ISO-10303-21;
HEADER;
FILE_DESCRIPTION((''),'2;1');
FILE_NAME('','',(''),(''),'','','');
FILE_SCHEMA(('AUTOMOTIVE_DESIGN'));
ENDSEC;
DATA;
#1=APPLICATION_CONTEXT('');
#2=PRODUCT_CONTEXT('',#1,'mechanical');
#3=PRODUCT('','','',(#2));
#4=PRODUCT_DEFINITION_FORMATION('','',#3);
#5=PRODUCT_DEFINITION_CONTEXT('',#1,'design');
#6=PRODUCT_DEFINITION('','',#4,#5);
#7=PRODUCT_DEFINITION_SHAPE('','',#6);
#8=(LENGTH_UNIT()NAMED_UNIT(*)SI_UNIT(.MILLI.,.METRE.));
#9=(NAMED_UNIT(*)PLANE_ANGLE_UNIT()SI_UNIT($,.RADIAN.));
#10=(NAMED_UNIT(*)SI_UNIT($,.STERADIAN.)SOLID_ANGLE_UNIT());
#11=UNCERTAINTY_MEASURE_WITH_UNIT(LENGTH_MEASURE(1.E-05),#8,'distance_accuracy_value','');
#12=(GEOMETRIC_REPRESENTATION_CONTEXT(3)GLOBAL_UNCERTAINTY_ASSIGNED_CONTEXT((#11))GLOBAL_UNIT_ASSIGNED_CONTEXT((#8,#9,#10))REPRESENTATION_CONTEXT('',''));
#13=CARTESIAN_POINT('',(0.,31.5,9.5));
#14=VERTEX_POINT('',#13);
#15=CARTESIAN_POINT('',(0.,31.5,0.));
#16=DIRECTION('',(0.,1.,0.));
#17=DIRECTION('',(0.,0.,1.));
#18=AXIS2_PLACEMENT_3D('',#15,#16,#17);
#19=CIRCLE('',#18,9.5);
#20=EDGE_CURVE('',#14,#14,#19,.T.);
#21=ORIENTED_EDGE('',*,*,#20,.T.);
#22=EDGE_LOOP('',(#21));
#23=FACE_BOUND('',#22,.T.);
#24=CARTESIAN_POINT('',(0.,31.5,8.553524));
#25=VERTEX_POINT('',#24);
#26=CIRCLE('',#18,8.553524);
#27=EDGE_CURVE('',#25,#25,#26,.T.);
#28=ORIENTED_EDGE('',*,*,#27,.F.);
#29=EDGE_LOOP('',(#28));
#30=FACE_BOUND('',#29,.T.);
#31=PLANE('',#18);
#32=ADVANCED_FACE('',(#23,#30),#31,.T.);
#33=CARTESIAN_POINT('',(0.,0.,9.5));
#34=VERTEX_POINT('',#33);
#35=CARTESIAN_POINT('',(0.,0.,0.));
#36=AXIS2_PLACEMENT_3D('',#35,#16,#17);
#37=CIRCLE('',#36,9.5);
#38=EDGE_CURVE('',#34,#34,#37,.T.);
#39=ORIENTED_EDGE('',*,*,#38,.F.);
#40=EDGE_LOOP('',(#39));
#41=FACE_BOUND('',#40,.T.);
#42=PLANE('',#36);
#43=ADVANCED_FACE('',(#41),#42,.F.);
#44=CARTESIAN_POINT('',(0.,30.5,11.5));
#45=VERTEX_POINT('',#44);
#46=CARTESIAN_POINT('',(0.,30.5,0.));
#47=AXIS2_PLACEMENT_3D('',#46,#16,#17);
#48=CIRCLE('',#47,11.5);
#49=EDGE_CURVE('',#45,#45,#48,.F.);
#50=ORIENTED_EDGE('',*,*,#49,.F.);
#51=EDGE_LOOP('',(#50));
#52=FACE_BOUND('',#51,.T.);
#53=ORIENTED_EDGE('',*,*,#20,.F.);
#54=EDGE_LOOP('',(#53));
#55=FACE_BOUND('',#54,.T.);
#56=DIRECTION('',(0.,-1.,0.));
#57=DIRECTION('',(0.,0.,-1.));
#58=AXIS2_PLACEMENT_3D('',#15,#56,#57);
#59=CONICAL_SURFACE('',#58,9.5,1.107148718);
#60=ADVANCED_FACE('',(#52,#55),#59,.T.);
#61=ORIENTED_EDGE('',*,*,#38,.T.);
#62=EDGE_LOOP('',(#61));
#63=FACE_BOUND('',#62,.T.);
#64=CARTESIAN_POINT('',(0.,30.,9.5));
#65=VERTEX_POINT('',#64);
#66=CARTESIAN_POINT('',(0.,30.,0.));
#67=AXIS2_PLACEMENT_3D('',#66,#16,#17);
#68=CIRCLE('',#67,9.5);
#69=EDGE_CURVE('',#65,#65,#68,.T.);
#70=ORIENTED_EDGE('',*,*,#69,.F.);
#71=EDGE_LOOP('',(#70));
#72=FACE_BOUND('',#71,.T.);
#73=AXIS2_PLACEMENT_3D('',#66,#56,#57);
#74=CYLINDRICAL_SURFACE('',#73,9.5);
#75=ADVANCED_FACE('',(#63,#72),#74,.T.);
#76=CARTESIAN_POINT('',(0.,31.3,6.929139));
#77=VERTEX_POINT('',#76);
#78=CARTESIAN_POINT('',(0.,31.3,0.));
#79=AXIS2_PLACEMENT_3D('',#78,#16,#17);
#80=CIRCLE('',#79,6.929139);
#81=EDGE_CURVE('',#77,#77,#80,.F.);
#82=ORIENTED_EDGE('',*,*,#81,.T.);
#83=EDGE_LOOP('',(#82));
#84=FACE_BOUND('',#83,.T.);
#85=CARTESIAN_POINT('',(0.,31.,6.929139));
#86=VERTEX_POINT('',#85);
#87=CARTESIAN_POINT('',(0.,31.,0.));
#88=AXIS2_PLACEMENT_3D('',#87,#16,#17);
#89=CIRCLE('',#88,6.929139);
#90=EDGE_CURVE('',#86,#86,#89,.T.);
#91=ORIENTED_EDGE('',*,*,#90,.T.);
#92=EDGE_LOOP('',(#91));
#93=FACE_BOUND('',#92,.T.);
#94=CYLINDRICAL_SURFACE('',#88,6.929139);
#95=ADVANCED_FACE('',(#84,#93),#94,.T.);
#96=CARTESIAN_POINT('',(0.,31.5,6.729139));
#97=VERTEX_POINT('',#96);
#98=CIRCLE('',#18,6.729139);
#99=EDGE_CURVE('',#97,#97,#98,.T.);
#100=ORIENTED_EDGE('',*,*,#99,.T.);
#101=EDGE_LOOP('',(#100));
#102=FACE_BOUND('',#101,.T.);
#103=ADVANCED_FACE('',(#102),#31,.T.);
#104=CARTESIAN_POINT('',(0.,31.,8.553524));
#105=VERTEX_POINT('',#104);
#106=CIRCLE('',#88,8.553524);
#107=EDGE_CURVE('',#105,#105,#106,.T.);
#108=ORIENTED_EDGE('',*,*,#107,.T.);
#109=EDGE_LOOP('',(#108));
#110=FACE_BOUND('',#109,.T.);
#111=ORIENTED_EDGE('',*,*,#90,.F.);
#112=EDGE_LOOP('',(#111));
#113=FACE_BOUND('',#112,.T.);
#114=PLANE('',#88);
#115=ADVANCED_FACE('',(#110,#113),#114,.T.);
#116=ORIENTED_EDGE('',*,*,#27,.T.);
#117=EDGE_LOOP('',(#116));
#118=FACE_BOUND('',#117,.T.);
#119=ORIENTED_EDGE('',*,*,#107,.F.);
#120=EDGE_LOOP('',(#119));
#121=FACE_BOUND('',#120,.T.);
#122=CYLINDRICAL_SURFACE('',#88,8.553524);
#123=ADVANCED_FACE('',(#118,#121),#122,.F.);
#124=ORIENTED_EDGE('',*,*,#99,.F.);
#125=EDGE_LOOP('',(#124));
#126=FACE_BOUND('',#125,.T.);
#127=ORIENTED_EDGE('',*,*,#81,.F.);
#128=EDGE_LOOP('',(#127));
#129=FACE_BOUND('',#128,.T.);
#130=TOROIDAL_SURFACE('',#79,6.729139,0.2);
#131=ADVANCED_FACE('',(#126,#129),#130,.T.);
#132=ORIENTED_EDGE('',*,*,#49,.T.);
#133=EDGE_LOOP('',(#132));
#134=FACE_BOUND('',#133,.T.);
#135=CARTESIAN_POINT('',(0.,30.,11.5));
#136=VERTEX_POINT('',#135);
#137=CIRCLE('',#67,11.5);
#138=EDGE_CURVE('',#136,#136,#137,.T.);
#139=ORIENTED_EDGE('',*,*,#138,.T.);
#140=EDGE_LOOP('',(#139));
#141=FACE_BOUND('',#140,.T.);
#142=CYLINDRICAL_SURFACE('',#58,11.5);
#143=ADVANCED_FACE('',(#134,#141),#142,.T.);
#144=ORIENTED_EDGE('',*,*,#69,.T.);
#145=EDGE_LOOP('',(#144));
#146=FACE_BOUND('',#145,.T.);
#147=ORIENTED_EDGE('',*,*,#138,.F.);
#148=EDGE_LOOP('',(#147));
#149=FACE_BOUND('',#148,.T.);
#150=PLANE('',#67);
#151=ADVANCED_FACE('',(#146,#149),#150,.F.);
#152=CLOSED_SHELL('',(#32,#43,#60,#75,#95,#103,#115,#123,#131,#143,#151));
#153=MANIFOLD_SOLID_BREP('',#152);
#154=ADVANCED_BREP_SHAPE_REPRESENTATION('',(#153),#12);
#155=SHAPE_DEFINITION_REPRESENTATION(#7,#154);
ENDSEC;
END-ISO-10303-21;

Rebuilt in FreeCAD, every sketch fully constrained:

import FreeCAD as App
import Part
import Sketcher

V = App.Vector


def edges_at(feature, points):
    """Names of the edges that pass closest to the given points."""
    edges = feature.Shape.Edges
    near = lambda p: min(range(len(edges)), key=lambda i: edges[i].distToShape(Part.Vertex(*p))[0])
    return sorted({f"Edge{near(p) + 1}" for p in points})

doc = App.newDocument("Part")
params = doc.addObject("Spreadsheet::Sheet", "Params")
for row, (alias, value) in enumerate([
    ("sketch1_diameter", "19 mm"),
    ("pad1_length", "30 mm"),
    ("sketch2_diameter", "23 mm"),
    ("pad2_length", "1.5 mm"),
    ("chamfer_size", "1 mm"),
    ("chamfer_size2", "2 mm"),
    ("pocket1_length", "0.5 mm"),
    ("fillet_radius", "0.2 mm"),
], start=1):
    params.set(f"A{row}", alias)
    params.set(f"B{row}", "=" + value)
    params.setAlias(f"B{row}", alias)

body = doc.addObject("PartDesign::Body", "Body")

sketch1 = body.newObject("Sketcher::SketchObject", "Sketch")
sketch1.AttachmentSupport = (doc.getObject("XZ_Plane"), [""])
sketch1.MapMode = "FlatFace"
sketch1.addGeometry(Part.Circle(V(0, 0, 0), V(0, 0, 1), 10), False)
sketch1.addConstraint([
    Sketcher.Constraint("Coincident", 0, 3, -1, 1),
    Sketcher.Constraint("Diameter", 0, 19.0),
])
sketch1.setExpression("Constraints[1]", "Params.sketch1_diameter")
pad1 = body.newObject("PartDesign::Pad", "Pad")
pad1.Profile = sketch1
pad1.setExpression("Length", "Params.pad1_length")
pad1.Reversed = True

sketch2 = body.newObject("Sketcher::SketchObject", "Sketch001")
sketch2.AttachmentSupport = (doc.getObject("XZ_Plane"), [""])
sketch2.MapMode = "FlatFace"
sketch2.AttachmentOffset = App.Placement(V(0, 0, -30), App.Rotation())
sketch2.addGeometry(Part.Circle(V(0, 0, 0), V(0, 0, 1), 12), False)
sketch2.addConstraint([
    Sketcher.Constraint("Coincident", 0, 3, -1, 1),
    Sketcher.Constraint("Diameter", 0, 23.0),
])
sketch2.setExpression("Constraints[1]", "Params.sketch2_diameter")
pad2 = body.newObject("PartDesign::Pad", "Pad001")
pad2.Profile = sketch2
pad2.setExpression("Length", "Params.pad2_length")
pad2.Reversed = True
doc.recompute()

chamfer = body.newObject("PartDesign::Chamfer", "Chamfer")
chamfer.Base = (pad2, edges_at(pad2, [(-11.5, 31.5, 0)]))
chamfer.ChamferType = "Two distances"
chamfer.setExpression("Size", "Params.chamfer_size")
chamfer.setExpression("Size2", "Params.chamfer_size2")

sketch3 = body.newObject("Sketcher::SketchObject", "Sketch002")
sketch3.AttachmentSupport = (doc.getObject("XZ_Plane"), [""])
sketch3.MapMode = "FlatFace"
sketch3.AttachmentOffset = App.Placement(V(0, 0, -31.5), App.Rotation())
sketch3.addGeometry([
    Part.Circle(V(0, 0, 0), V(0, 0, 1), 9),
    Part.Circle(V(0, 0, 0), V(0, 0, 1), 7),
], False)
sketch3.addConstraint([
    Sketcher.Constraint("Coincident", 0, 3, -1, 1),
    Sketcher.Constraint("Coincident", 1, 3, -1, 1),
    Sketcher.Constraint("Diameter", 0, 17.107047),
    Sketcher.Constraint("Diameter", 1, 13.858278),
])
pocket1 = body.newObject("PartDesign::Pocket", "Pocket")
pocket1.Profile = sketch3
pocket1.setExpression("Length", "Params.pocket1_length")
pocket1.Reversed = True
doc.recompute()

fillet = body.newObject("PartDesign::Fillet", "Fillet")
fillet.Base = (pocket1, edges_at(pocket1, [(-6.929, 31.5, 0)]))
fillet.setExpression("Radius", "Params.fillet_radius")

doc.recompute()
